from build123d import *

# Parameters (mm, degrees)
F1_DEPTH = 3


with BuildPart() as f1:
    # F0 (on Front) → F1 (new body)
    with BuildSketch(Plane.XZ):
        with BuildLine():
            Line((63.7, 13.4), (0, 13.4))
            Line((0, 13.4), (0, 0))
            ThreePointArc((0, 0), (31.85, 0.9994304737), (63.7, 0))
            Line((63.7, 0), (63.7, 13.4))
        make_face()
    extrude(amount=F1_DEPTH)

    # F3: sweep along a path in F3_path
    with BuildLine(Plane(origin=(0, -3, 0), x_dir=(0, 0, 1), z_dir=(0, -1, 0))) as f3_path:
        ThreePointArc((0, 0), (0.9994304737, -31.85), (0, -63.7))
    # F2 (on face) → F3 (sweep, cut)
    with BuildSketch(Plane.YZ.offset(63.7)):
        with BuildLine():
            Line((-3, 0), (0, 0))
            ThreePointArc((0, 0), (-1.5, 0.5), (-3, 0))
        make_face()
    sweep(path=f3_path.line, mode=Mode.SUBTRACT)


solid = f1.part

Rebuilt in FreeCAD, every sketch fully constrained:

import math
import FreeCAD as App
import Part
import Sketcher
from FreeCAD import Vector
Q = App.Units.Quantity

doc = App.newDocument("Part")
body = doc.addObject("PartDesign::Body", "Body")

sketch1 = body.newObject("Sketcher::SketchObject", "Sketch")
sketch1.AttachmentSupport = (doc.getObject("XZ_Plane"), [""])
sketch1.MapMode = "FlatFace"
sketch1.addGeometry([
    Part.LineSegment(Vector(64, 13, 0), Vector(0, 13, 0)),
    Part.LineSegment(Vector(0, 13, 0), Vector(0, 0, 0)),
    Part.ArcOfCircle(Part.Circle(Vector(32, -507, 0), Vector(0, 0, 1), 508), math.radians(86.41), math.radians(93.59)),
    Part.LineSegment(Vector(64, 0, 0), Vector(64, 13, 0)),
], False)
sketch1.addConstraint([
    Sketcher.Constraint("Coincident", 0, 2, 1, 1),
    Sketcher.Constraint("Coincident", 1, 2, 2, 2),
    Sketcher.Constraint("Coincident", 2, 1, 3, 1),
    Sketcher.Constraint("Coincident", 3, 2, 0, 1),
    Sketcher.Constraint("Horizontal", 0),
    Sketcher.Constraint("Vertical", 1),
    Sketcher.Constraint("Vertical", 3),
    Sketcher.Constraint("Coincident", 1, 2, -1, 1),
    Sketcher.Constraint("PointOnObject", 2, 1, -1),
    Sketcher.Constraint("Radius", 2, Q("508 mm")),
    Sketcher.Constraint("DistanceX", 0, 2, 0, 1, Q("63.7 mm")),
    Sketcher.Constraint("DistanceY", 1, 2, 1, 1, Q("13.4 mm")),
])
pad1 = body.newObject("PartDesign::Pad", "Pad")
pad1.Profile = sketch1
pad1.Length = 3

sketch2 = body.newObject("Sketcher::SketchObject", "Sketch001")
sketch2.AttachmentSupport = (doc.getObject("YZ_Plane"), [""])
sketch2.MapMode = "FlatFace"
sketch2.AttachmentOffset = App.Placement(Vector(0, 0, 63.7), App.Rotation())
sketch2.addGeometry([
    Part.LineSegment(Vector(-3, 0, 0), Vector(0, 0, 0)),
    Part.ArcOfCircle(Part.Circle(Vector(-1.5, -2, 0), Vector(0, 0, 1), 2.5), math.radians(53), math.radians(127)),
], False)
sketch2.addConstraint([
    Sketcher.Constraint("Coincident", 0, 1, 1, 2),
    Sketcher.Constraint("Coincident", 1, 1, 0, 2),
    Sketcher.Constraint("Horizontal", 0),
    Sketcher.Constraint("Coincident", 1, 1, -1, 1),
    Sketcher.Constraint("Radius", 1, Q("2.5 mm")),
    Sketcher.Constraint("DistanceX", 0, 1, 0, 2, Q("3 mm")),
])

sketch3 = body.newObject("Sketcher::SketchObject", "Sketch002")
sketch3.AttachmentSupport = (doc.getObject("XZ_Plane"), [""])
sketch3.MapMode = "FlatFace"
sketch3.AttachmentOffset = App.Placement(Vector(0, 0, 3), App.Rotation())
sketch3.addGeometry(Part.ArcOfCircle(Part.Circle(Vector(32, -507, 0), Vector(0, 0, 1), 508), math.radians(86.41), math.radians(93.59)), False)
sketch3.addConstraint([
    Sketcher.Constraint("Coincident", 0, 2, -1, 1),
    Sketcher.Constraint("PointOnObject", 0, 1, -1),
    Sketcher.Constraint("Radius", 0, Q("508 mm")),
    Sketcher.Constraint("DistanceX", -1, 1, 0, 1, Q("63.7 mm")),
])
doc.recompute()

subtractivepipe = body.newObject("PartDesign::SubtractivePipe", "SubtractivePipe")
subtractivepipe.Profile = sketch2
subtractivepipe.Spine = (sketch3, ["Edge1"])

doc.recompute()
